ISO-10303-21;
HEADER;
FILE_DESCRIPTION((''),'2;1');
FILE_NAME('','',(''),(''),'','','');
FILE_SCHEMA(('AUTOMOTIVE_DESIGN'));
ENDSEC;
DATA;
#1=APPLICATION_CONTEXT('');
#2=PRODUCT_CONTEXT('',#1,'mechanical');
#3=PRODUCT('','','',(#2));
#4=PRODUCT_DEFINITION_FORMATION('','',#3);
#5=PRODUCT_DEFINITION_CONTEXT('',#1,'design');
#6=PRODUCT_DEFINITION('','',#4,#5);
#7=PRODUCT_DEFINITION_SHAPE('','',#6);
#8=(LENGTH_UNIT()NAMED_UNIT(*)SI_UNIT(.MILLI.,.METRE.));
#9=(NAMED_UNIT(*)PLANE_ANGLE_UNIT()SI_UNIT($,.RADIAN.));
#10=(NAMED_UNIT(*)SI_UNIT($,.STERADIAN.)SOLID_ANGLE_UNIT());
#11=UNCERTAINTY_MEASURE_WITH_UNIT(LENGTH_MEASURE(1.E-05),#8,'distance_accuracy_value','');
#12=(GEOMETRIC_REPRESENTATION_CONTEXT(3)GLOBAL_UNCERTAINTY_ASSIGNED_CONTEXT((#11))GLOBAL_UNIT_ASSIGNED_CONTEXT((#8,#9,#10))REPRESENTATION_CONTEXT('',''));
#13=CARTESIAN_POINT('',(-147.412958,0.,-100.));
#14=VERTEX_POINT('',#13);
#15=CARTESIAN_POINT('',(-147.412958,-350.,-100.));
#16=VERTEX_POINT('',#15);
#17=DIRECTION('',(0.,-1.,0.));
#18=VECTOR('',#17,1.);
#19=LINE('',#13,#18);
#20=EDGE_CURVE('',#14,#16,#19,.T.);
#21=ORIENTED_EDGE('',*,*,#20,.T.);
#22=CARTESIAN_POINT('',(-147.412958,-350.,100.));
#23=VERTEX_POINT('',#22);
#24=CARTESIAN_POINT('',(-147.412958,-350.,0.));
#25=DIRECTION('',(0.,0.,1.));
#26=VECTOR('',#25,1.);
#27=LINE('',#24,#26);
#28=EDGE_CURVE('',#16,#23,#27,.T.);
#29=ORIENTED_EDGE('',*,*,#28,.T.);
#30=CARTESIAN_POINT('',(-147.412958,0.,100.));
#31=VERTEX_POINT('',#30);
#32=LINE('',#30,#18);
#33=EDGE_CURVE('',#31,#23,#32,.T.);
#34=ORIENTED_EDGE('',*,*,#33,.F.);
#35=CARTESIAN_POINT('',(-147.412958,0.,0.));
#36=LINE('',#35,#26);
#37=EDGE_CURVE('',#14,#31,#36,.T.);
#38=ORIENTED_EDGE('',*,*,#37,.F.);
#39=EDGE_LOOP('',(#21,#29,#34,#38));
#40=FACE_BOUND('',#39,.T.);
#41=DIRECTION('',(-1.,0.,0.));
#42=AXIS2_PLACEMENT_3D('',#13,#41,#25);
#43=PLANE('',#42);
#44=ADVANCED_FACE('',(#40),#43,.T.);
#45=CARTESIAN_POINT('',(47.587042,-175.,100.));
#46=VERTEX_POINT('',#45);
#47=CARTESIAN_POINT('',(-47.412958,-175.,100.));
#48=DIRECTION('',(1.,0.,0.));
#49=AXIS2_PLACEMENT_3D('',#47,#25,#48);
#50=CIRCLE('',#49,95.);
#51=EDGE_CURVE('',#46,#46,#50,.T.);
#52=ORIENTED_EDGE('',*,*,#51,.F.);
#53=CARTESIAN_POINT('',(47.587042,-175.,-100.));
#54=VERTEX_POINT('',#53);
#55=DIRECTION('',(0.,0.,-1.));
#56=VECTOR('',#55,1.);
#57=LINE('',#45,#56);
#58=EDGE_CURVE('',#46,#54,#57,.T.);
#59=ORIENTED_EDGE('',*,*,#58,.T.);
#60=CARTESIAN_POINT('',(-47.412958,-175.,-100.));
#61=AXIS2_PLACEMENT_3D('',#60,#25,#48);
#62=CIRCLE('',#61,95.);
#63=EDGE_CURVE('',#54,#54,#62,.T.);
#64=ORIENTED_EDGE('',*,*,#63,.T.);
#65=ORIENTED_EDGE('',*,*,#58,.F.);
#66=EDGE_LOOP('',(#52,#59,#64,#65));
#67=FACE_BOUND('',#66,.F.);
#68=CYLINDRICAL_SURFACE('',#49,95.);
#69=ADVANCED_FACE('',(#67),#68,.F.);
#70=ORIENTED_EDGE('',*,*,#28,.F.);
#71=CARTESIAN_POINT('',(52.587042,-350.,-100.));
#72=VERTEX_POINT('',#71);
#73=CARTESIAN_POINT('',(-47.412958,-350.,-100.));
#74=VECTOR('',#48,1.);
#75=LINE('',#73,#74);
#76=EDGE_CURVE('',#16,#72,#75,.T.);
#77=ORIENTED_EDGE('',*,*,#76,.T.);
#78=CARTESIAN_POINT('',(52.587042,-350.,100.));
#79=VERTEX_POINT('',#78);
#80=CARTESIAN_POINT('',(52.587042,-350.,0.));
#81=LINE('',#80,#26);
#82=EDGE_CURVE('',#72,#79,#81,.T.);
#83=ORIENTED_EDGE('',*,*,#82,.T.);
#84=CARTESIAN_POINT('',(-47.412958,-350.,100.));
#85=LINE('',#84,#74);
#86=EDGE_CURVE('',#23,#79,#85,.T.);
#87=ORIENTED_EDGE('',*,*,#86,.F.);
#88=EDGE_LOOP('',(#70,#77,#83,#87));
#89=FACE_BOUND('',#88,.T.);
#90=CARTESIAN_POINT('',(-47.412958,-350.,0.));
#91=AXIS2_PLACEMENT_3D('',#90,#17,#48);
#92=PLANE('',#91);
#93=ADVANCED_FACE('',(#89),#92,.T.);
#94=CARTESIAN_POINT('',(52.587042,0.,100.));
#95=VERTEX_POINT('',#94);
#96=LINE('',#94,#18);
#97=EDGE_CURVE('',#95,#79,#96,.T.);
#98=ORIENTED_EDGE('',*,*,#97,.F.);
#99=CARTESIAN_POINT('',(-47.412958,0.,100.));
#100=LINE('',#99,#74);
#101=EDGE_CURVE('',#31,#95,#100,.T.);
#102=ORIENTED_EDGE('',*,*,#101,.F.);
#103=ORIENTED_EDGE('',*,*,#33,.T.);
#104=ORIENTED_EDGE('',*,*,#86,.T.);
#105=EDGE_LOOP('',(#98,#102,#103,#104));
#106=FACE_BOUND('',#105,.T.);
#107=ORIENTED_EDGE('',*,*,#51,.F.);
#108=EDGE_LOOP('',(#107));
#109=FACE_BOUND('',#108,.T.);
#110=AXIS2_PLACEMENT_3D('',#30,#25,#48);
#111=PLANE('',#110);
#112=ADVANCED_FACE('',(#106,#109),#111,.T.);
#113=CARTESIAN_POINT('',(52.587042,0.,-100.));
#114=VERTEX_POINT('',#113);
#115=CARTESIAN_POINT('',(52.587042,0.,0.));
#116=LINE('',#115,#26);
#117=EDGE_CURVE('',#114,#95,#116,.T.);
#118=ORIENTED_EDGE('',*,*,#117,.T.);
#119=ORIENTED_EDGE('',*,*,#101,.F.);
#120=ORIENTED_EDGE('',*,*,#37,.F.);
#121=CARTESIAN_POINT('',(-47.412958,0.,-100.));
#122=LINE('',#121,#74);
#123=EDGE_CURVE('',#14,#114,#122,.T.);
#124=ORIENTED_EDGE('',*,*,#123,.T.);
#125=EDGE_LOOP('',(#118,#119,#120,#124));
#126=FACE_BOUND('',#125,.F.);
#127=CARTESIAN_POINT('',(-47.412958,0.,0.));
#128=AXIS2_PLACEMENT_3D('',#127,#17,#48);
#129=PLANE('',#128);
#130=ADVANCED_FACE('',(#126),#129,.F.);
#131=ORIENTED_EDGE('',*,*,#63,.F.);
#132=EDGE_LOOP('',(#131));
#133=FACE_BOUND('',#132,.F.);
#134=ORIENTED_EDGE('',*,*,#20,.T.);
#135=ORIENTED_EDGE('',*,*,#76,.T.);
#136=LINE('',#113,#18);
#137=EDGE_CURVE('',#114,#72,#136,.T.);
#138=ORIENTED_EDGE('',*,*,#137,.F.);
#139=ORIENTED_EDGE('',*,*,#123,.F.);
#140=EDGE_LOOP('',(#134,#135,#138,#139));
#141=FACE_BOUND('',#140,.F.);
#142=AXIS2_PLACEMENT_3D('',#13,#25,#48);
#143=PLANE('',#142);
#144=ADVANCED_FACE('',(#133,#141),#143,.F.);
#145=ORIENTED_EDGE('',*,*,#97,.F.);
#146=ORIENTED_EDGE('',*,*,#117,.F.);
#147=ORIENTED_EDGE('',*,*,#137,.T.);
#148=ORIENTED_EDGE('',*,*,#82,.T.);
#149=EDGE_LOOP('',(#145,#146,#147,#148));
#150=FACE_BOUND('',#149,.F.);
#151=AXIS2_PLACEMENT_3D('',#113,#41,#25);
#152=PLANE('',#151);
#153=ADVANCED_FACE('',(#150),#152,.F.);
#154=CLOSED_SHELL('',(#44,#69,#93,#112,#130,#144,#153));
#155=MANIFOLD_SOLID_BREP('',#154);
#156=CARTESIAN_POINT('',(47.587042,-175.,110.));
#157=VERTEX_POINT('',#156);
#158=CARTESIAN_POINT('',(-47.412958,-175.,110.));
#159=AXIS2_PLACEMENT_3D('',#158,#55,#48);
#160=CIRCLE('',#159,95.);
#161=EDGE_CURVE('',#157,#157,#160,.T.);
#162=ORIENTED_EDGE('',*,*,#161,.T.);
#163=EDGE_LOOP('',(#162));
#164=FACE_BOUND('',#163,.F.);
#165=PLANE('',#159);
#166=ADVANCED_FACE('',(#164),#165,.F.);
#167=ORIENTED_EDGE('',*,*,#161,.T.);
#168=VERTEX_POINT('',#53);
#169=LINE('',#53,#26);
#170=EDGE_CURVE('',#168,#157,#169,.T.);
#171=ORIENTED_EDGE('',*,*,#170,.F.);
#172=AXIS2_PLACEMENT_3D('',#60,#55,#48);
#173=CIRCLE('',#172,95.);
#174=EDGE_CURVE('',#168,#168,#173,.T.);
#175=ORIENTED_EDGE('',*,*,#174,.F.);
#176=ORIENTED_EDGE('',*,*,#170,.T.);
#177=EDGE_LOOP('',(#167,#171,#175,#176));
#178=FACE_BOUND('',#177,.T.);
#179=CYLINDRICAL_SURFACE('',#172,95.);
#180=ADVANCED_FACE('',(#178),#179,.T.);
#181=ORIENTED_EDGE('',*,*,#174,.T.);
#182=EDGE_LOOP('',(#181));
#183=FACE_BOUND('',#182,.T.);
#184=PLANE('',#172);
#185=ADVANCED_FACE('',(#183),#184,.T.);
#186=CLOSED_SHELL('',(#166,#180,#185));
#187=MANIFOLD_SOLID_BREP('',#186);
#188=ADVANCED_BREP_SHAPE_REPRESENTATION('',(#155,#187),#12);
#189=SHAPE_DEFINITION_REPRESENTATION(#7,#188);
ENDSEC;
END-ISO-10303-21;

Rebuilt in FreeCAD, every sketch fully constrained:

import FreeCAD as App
import Part
import Sketcher
Q = App.Units.Quantity


def add_polygon(sketch, points):
    """Adds a closed chain of lines whose ends are joined by coincident constraints."""
    first, n = sketch.GeometryCount, len(points)
    for a, b in zip(points, points[1:] + points[:1]):
        sketch.addGeometry(Part.LineSegment(App.Vector(*a, 0), App.Vector(*b, 0)), False)
    for i in range(n):
        sketch.addConstraint(Sketcher.Constraint("Coincident", first + i, 2, first + (i + 1) % n, 1))

doc = App.newDocument("Part")
params = doc.addObject("Spreadsheet::Sheet", "Params")
for row, (alias, value) in enumerate([
    ("sketch1_width", "200 mm"),
    ("pad1_length", "350 mm"),
    ("sketch2_diameter", "190 mm"),
    ("sketch3_diameter", "190 mm"),
    ("pad2_length", "210 mm"),
], start=1):
    params.set(f"A{row}", alias)
    params.set(f"B{row}", "=" + value)
    params.setAlias(f"B{row}", alias)

body = doc.addObject("PartDesign::Body", "Body")

sketch1 = body.newObject("Sketcher::SketchObject", "Sketch")
sketch1.AttachmentSupport = (doc.getObject("XZ_Plane"), [""])
sketch1.MapMode = "FlatFace"
add_polygon(sketch1, [(-147.412958, 100), (-147.412958, -100), (52.587042, -100), (52.587042, 100)])
sketch1.addConstraint(Sketcher.Constraint("Vertical", 0))
sketch1.addConstraint(Sketcher.Constraint("Horizontal", 1))
sketch1.addConstraint(Sketcher.Constraint("Vertical", 2))
sketch1.addConstraint(Sketcher.Constraint("Horizontal", 3))
sketch1.addConstraint(Sketcher.Constraint("Equal", 3, 0))
sketch1.addConstraint(Sketcher.Constraint("DistanceX", 1, 1, 1, 2, Q("200 mm")))
sketch1.addConstraint(Sketcher.Constraint("DistanceY", 0, 2, -1, 1, Q("100 mm")))
sketch1.addConstraint(Sketcher.Constraint("DistanceX", 0, 2, -1, 1, Q("147.412958 mm")))
sketch1.setExpression("Constraints[9]", "Params.sketch1_width")
pad1 = body.newObject("PartDesign::Pad", "Pad")
pad1.Profile = sketch1
pad1.setExpression("Length", "Params.pad1_length")

sketch2 = body.newObject("Sketcher::SketchObject", "Sketch001")
sketch2.AttachmentSupport = (doc.getObject("XY_Plane"), [""])
sketch2.MapMode = "FlatFace"
sketch2.AttachmentOffset = App.Placement(App.Vector(0, 0, 100), App.Rotation())
sketch2.addGeometry(Part.Circle(App.Vector(-47.412958, -175, 0), App.Vector(0, 0, 1), 95), False)
sketch2.addConstraint(Sketcher.Constraint("Diameter", 0, Q("190 mm")))
sketch2.addConstraint(Sketcher.Constraint("DistanceY", 0, 3, -1, 1, Q("175 mm")))
sketch2.addConstraint(Sketcher.Constraint("DistanceX", 0, 3, -1, 1, Q("47.412958 mm")))
sketch2.setExpression("Constraints[0]", "Params.sketch2_diameter")
pocket1 = body.newObject("PartDesign::Pocket", "Pocket")
pocket1.Profile = sketch2
pocket1.Type = "ThroughAll"
body2 = doc.addObject("PartDesign::Body", "Body001")

sketch3 = body2.newObject("Sketcher::SketchObject", "Sketch002")
sketch3.AttachmentSupport = (doc.getObject("XY_Plane001"), [""])
sketch3.MapMode = "FlatFace"
sketch3.AttachmentOffset = App.Placement(App.Vector(0, 0, -100), App.Rotation())
sketch3.addGeometry(Part.Circle(App.Vector(-47.412958, -175, 0), App.Vector(0, 0, 1), 95), False)
sketch3.addConstraint(Sketcher.Constraint("Diameter", 0, Q("190 mm")))
sketch3.addConstraint(Sketcher.Constraint("DistanceY", 0, 3, -1, 1, Q("175 mm")))
sketch3.addConstraint(Sketcher.Constraint("DistanceX", 0, 3, -1, 1, Q("47.412958 mm")))
sketch3.setExpression("Constraints[0]", "Params.sketch3_diameter")
pad2 = body2.newObject("PartDesign::Pad", "Pad001")
pad2.Profile = sketch3
pad2.setExpression("Length", "Params.pad2_length")

doc.recompute()
